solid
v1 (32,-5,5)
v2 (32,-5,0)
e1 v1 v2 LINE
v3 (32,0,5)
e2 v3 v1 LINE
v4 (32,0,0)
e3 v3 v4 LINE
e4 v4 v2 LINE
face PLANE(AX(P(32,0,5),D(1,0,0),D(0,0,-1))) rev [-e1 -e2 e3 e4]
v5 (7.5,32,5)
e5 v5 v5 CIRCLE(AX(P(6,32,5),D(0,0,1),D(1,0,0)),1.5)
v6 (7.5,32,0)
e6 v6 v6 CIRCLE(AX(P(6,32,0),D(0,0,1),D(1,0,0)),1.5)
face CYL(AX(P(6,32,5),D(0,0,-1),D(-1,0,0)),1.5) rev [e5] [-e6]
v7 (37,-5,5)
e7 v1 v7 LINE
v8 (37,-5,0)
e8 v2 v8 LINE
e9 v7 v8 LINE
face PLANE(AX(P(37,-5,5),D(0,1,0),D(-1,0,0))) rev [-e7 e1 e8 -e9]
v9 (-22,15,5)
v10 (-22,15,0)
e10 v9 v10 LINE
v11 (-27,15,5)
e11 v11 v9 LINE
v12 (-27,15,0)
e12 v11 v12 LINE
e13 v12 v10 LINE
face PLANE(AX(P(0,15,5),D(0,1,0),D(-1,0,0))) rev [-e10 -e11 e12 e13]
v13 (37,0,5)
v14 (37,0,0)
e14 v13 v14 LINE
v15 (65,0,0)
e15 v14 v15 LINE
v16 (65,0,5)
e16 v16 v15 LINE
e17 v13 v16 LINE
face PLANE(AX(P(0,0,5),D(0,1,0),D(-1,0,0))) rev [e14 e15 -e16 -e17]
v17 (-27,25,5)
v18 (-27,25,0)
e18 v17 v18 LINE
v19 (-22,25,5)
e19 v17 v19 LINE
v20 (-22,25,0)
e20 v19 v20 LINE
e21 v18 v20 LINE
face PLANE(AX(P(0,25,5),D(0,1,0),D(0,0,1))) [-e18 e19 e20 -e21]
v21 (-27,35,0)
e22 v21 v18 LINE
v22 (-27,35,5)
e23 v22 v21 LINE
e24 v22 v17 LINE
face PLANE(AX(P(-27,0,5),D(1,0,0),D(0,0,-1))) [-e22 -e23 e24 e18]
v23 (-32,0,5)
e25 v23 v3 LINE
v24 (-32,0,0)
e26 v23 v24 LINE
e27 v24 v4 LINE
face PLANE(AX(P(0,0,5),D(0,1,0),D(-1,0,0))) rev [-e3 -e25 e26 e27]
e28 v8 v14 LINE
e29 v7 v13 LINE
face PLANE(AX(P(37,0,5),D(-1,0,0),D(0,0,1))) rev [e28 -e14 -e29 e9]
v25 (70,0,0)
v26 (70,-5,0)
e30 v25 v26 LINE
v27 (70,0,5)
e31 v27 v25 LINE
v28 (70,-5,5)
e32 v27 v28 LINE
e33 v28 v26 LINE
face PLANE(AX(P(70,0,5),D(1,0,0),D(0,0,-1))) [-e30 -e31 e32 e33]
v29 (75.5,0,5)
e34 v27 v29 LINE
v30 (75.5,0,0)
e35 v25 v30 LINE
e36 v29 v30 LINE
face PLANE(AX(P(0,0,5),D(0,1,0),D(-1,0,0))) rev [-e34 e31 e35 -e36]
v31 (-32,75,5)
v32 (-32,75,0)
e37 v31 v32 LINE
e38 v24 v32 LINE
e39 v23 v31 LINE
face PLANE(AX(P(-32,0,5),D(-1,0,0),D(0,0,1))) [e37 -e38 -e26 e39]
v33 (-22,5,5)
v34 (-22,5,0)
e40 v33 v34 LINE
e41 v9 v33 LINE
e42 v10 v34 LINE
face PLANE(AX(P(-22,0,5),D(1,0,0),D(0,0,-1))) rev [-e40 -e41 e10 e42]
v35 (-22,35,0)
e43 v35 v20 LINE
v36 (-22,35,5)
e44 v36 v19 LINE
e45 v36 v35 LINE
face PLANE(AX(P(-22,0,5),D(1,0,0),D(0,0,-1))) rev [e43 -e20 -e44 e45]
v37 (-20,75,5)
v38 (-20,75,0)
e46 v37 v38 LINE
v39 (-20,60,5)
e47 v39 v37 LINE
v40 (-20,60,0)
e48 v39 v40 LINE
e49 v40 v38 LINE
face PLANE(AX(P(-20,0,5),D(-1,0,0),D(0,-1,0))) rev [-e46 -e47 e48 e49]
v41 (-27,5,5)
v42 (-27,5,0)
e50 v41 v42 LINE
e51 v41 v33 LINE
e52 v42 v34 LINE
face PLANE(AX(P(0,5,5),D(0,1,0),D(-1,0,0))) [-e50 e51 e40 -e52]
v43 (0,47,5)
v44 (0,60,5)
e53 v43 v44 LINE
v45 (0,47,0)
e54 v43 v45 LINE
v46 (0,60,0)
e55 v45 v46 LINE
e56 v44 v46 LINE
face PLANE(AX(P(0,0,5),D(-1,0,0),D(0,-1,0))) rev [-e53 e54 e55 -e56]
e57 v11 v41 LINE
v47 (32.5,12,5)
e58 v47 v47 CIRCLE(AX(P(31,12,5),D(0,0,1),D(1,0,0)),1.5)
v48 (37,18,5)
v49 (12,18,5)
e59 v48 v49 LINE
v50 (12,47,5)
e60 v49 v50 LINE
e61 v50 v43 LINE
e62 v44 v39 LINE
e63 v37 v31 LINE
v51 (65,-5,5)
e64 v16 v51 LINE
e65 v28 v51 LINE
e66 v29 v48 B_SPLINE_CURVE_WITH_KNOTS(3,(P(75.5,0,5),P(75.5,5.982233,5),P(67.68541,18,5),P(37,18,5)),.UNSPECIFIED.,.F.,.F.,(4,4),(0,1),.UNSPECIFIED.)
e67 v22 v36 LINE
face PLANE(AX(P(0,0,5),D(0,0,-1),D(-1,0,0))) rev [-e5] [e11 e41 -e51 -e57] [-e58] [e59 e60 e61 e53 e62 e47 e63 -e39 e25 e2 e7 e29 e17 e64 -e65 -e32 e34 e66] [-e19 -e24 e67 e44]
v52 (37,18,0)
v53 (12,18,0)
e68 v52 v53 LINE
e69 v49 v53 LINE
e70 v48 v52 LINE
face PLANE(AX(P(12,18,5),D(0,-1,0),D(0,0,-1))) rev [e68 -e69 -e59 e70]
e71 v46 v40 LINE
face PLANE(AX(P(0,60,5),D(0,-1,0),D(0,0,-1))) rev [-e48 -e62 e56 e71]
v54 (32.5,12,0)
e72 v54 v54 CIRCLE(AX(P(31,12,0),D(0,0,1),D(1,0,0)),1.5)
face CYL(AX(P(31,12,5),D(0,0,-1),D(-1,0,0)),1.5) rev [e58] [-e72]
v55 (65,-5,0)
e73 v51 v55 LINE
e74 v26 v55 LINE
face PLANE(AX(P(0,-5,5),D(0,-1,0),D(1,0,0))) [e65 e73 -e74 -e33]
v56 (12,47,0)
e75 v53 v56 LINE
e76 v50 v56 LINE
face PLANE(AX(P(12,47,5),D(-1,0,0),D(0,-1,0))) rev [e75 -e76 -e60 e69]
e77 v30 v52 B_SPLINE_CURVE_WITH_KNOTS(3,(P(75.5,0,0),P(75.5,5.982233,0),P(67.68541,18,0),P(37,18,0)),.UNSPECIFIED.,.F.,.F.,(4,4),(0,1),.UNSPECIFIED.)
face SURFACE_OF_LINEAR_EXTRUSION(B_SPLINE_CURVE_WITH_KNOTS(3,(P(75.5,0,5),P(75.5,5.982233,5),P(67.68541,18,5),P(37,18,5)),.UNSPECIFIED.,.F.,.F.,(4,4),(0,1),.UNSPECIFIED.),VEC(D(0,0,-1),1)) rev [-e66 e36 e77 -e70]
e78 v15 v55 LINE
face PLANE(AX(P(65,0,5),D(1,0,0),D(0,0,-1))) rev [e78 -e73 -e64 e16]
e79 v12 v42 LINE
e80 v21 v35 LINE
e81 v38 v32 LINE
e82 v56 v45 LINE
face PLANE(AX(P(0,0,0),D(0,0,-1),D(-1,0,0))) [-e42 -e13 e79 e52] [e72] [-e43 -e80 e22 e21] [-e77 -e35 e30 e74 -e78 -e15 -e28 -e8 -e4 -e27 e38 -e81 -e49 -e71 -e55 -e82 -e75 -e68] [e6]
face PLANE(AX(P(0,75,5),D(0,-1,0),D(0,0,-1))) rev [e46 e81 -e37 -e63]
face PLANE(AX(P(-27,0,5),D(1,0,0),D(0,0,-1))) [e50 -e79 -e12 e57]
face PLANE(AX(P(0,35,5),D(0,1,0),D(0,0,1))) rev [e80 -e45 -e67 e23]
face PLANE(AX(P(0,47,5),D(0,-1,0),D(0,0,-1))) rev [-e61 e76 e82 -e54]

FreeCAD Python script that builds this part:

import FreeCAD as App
import Part
import Sketcher

doc = App.newDocument("Part")
body = doc.addObject("PartDesign::Body", "Body")

sketch1 = body.newObject("Sketcher::SketchObject", "Sketch")
sketch1.AttachmentSupport = (doc.getObject("XY_Plane"), [""])
sketch1.MapMode = "FlatFace"
sketch1.addGeometry(Part.LineSegment(App.Vector(0, 0, 0), App.Vector(32, 0, 0)), False)
sketch1.addGeometry(Part.LineSegment(App.Vector(32, 0, 0), App.Vector(32, -5, 0)), False)
sketch1.addGeometry(Part.LineSegment(App.Vector(32, -5, 0), App.Vector(37, -5, 0)), False)
sketch1.addGeometry(Part.LineSegment(App.Vector(37, -5, 0), App.Vector(37, 18, 0)), False)
sketch1.addGeometry(Part.LineSegment(App.Vector(37, 18, 0), App.Vector(12, 18, 0)), False)
sketch1.addGeometry(Part.LineSegment(App.Vector(12, 18, 0), App.Vector(12, 47, 0)), False)
sketch1.addGeometry(Part.LineSegment(App.Vector(12, 47, 0), App.Vector(0, 47, 0)), False)
sketch1.addGeometry(Part.LineSegment(App.Vector(0, 47, 0), App.Vector(0, 0, 0)), False)
sketch1.addGeometry(Part.Circle(App.Vector(31, 12, 0), App.Vector(0, 0, 1), 1.5), False)
sketch1.addGeometry(Part.Circle(App.Vector(6, 32, 0), App.Vector(0, 0, 1), 1.5), False)
sketch1.addConstraint(Sketcher.Constraint("Coincident", 0, 2, 1, 1))
sketch1.addConstraint(Sketcher.Constraint("Coincident", 1, 2, 2, 1))
sketch1.addConstraint(Sketcher.Constraint("Coincident", 2, 2, 3, 1))
sketch1.addConstraint(Sketcher.Constraint("Coincident", 3, 2, 4, 1))
sketch1.addConstraint(Sketcher.Constraint("Coincident", 4, 2, 5, 1))
sketch1.addConstraint(Sketcher.Constraint("Coincident", 5, 2, 6, 1))
sketch1.addConstraint(Sketcher.Constraint("Coincident", 6, 2, 7, 1))
sketch1.addConstraint(Sketcher.Constraint("Coincident", 7, 2, 0, 1))
sketch1.addConstraint(Sketcher.Constraint("Horizontal", 0))
sketch1.addConstraint(Sketcher.Constraint("Vertical", 1))
sketch1.addConstraint(Sketcher.Constraint("Horizontal", 2))
sketch1.addConstraint(Sketcher.Constraint("Vertical", 3))
sketch1.addConstraint(Sketcher.Constraint("Horizontal", 4))
sketch1.addConstraint(Sketcher.Constraint("Vertical", 5))
sketch1.addConstraint(Sketcher.Constraint("Horizontal", 6))
sketch1.addConstraint(Sketcher.Constraint("Vertical", 7))
sketch1.addConstraint(Sketcher.Constraint("Coincident", 7, 2, -1, 1))
sketch1.addConstraint(Sketcher.Constraint("Equal", 8, 9))
sketch1.addConstraint(Sketcher.Constraint("Equal", 2, 1))
sketch1.addConstraint(Sketcher.Constraint("Diameter", 8, 3.0))
sketch1.addConstraint(Sketcher.Constraint("DistanceX", 0, 1, 0, 2, 32.0))
sketch1.addConstraint(Sketcher.Constraint("DistanceX", 2, 1, 2, 2, 5.0))
sketch1.addConstraint(Sketcher.Constraint("DistanceX", 4, 2, 4, 1, 25.0))
sketch1.addConstraint(Sketcher.Constraint("DistanceY", 3, 1, 3, 2, 23.0))
sketch1.addConstraint(Sketcher.Constraint("DistanceY", 5, 1, 5, 2, 29.0))
sketch1.addConstraint(Sketcher.Constraint("DistanceX", -1, 1, 8, 3, 31.0))
sketch1.addConstraint(Sketcher.Constraint("DistanceY", -1, 1, 8, 3, 12.0))
sketch1.addConstraint(Sketcher.Constraint("DistanceX", -1, 1, 9, 3, 6.0))
sketch1.addConstraint(Sketcher.Constraint("DistanceY", -1, 1, 9, 3, 32.0))
pad1 = body.newObject("PartDesign::Pad", "Pad")
pad1.Profile = sketch1
pad1.Length = 5

sketch2 = body.newObject("Sketcher::SketchObject", "Sketch001")
sketch2.AttachmentSupport = (doc.getObject("XY_Plane"), [""])
sketch2.MapMode = "FlatFace"
sketch2.addGeometry(Part.LineSegment(App.Vector(65, 0, 0), App.Vector(37, 0, 0)), False)
sketch2.addGeometry(Part.LineSegment(App.Vector(37, 0, 0), App.Vector(37, 18, 0)), False)
sketch2.addGeometry(Part.BSplineCurve([App.Vector(75.5, 0, 0), App.Vector(75.5, 5.982233, 0), App.Vector(67.68541, 18, 0), App.Vector(37, 18, 0)], [4, 4], [0, 1], False, 3, [1, 1, 1, 1], False), False)
sketch2.addGeometry(Part.LineSegment(App.Vector(75.5, 0, 0), App.Vector(70, 0, 0)), False)
sketch2.addGeometry(Part.LineSegment(App.Vector(70, 0, 0), App.Vector(70, -5, 0)), False)
sketch2.addGeometry(Part.LineSegment(App.Vector(70, -5, 0), App.Vector(65, -5, 0)), False)
sketch2.addGeometry(Part.LineSegment(App.Vector(65, -5, 0), App.Vector(65, 0, 0)), False)
sketch2.addGeometry(Part.LineSegment(App.Vector(0, 60, 0), App.Vector(0, 0, 0)), False)
sketch2.addGeometry(Part.LineSegment(App.Vector(0, 0, 0), App.Vector(-32, 0, 0)), False)
sketch2.addGeometry(Part.LineSegment(App.Vector(-32, 0, 0), App.Vector(-32, 75, 0)), False)
sketch2.addGeometry(Part.LineSegment(App.Vector(-32, 75, 0), App.Vector(-20, 75, 0)), False)
sketch2.addGeometry(Part.LineSegment(App.Vector(-20, 75, 0), App.Vector(-20, 60, 0)), False)
sketch2.addGeometry(Part.LineSegment(App.Vector(-20, 60, 0), App.Vector(0, 60, 0)), False)
sketch2.addGeometry(Part.LineSegment(App.Vector(-27, 5, 0), App.Vector(-22, 5, 0)), False)
sketch2.addGeometry(Part.LineSegment(App.Vector(-22, 5, 0), App.Vector(-22, 15, 0)), False)
sketch2.addGeometry(Part.LineSegment(App.Vector(-22, 15, 0), App.Vector(-27, 15, 0)), False)
sketch2.addGeometry(Part.LineSegment(App.Vector(-27, 15, 0), App.Vector(-27, 5, 0)), False)
sketch2.addGeometry(Part.LineSegment(App.Vector(-27, 25, 0), App.Vector(-22, 25, 0)), False)
sketch2.addGeometry(Part.LineSegment(App.Vector(-22, 25, 0), App.Vector(-22, 35, 0)), False)
sketch2.addGeometry(Part.LineSegment(App.Vector(-22, 35, 0), App.Vector(-27, 35, 0)), False)
sketch2.addGeometry(Part.LineSegment(App.Vector(-27, 35, 0), App.Vector(-27, 25, 0)), False)
sketch2.addConstraint(Sketcher.Constraint("Block", 2))
sketch2.addConstraint(Sketcher.Constraint("Coincident", 0, 2, 1, 1))
sketch2.addConstraint(Sketcher.Constraint("Coincident", 1, 2, 2, 2))
sketch2.addConstraint(Sketcher.Constraint("Coincident", 2, 1, 3, 1))
sketch2.addConstraint(Sketcher.Constraint("Coincident", 3, 2, 4, 1))
sketch2.addConstraint(Sketcher.Constraint("Coincident", 4, 2, 5, 1))
sketch2.addConstraint(Sketcher.Constraint("Coincident", 5, 2, 6, 1))
sketch2.addConstraint(Sketcher.Constraint("Coincident", 6, 2, 0, 1))
sketch2.addConstraint(Sketcher.Constraint("Coincident", 7, 2, 8, 1))
sketch2.addConstraint(Sketcher.Constraint("Coincident", 8, 2, 9, 1))
sketch2.addConstraint(Sketcher.Constraint("Coincident", 9, 2, 10, 1))
sketch2.addConstraint(Sketcher.Constraint("Coincident", 10, 2, 11, 1))
sketch2.addConstraint(Sketcher.Constraint("Coincident", 11, 2, 12, 1))
sketch2.addConstraint(Sketcher.Constraint("Coincident", 12, 2, 7, 1))
sketch2.addConstraint(Sketcher.Constraint("Coincident", 13, 2, 14, 1))
sketch2.addConstraint(Sketcher.Constraint("Coincident", 14, 2, 15, 1))
sketch2.addConstraint(Sketcher.Constraint("Coincident", 15, 2, 16, 1))
sketch2.addConstraint(Sketcher.Constraint("Coincident", 16, 2, 13, 1))
sketch2.addConstraint(Sketcher.Constraint("Coincident", 17, 2, 18, 1))
sketch2.addConstraint(Sketcher.Constraint("Coincident", 18, 2, 19, 1))
sketch2.addConstraint(Sketcher.Constraint("Coincident", 19, 2, 20, 1))
sketch2.addConstraint(Sketcher.Constraint("Coincident", 20, 2, 17, 1))
sketch2.addConstraint(Sketcher.Constraint("Horizontal", 0))
sketch2.addConstraint(Sketcher.Constraint("Vertical", 1))
sketch2.addConstraint(Sketcher.Constraint("Horizontal", 3))
sketch2.addConstraint(Sketcher.Constraint("Vertical", 4))
sketch2.addConstraint(Sketcher.Constraint("Horizontal", 5))
sketch2.addConstraint(Sketcher.Constraint("Vertical", 6))
sketch2.addConstraint(Sketcher.Constraint("Vertical", 7))
sketch2.addConstraint(Sketcher.Constraint("Horizontal", 8))
sketch2.addConstraint(Sketcher.Constraint("Vertical", 9))
sketch2.addConstraint(Sketcher.Constraint("Horizontal", 10))
sketch2.addConstraint(Sketcher.Constraint("Vertical", 11))
sketch2.addConstraint(Sketcher.Constraint("Horizontal", 12))
sketch2.addConstraint(Sketcher.Constraint("Horizontal", 13))
sketch2.addConstraint(Sketcher.Constraint("Vertical", 14))
sketch2.addConstraint(Sketcher.Constraint("Horizontal", 15))
sketch2.addConstraint(Sketcher.Constraint("Vertical", 16))
sketch2.addConstraint(Sketcher.Constraint("Horizontal", 17))
sketch2.addConstraint(Sketcher.Constraint("Vertical", 18))
sketch2.addConstraint(Sketcher.Constraint("Horizontal", 19))
sketch2.addConstraint(Sketcher.Constraint("Vertical", 20))
sketch2.addConstraint(Sketcher.Constraint("Coincident", 7, 2, -1, 1))
sketch2.addConstraint(Sketcher.Constraint("PointOnObject", 0, 2, -1))
sketch2.addConstraint(Sketcher.Constraint("Vertical", 14, 2, 17, 2))
sketch2.addConstraint(Sketcher.Constraint("Vertical", 16, 2, 19, 2))
sketch2.addConstraint(Sketcher.Constraint("Equal", 5, 13))
sketch2.addConstraint(Sketcher.Constraint("Equal", 19, 4))
sketch2.addConstraint(Sketcher.Constraint("Equal", 16, 18))
sketch2.addConstraint(Sketcher.Constraint("DistanceX", 0, 2, 0, 1, 28.0))
sketch2.addConstraint(Sketcher.Constraint("DistanceX", 5, 2, 5, 1, 5.0))
sketch2.addConstraint(Sketcher.Constraint("DistanceX", 8, 2, 8, 1, 32.0))
sketch2.addConstraint(Sketcher.Constraint("DistanceX", 10, 1, 10, 2, 12.0))
sketch2.addConstraint(Sketcher.Constraint("DistanceY", 7, 2, 7, 1, 60.0))
sketch2.addConstraint(Sketcher.Constraint("DistanceY", 9, 1, 9, 2, 75.0))
sketch2.addConstraint(Sketcher.Constraint("DistanceY", 14, 1, 14, 2, 10.0))
sketch2.addConstraint(Sketcher.Constraint("DistanceX", 13, 2, -1, 1, 22.0))
sketch2.addConstraint(Sketcher.Constraint("DistanceY", -1, 1, 13, 2, 5.0))
sketch2.addConstraint(Sketcher.Constraint("DistanceY", -1, 1, 17, 2, 25.0))
pad2 = body.newObject("PartDesign::Pad", "Pad001")
pad2.Profile = sketch2
pad2.Length = 5

doc.recompute()
